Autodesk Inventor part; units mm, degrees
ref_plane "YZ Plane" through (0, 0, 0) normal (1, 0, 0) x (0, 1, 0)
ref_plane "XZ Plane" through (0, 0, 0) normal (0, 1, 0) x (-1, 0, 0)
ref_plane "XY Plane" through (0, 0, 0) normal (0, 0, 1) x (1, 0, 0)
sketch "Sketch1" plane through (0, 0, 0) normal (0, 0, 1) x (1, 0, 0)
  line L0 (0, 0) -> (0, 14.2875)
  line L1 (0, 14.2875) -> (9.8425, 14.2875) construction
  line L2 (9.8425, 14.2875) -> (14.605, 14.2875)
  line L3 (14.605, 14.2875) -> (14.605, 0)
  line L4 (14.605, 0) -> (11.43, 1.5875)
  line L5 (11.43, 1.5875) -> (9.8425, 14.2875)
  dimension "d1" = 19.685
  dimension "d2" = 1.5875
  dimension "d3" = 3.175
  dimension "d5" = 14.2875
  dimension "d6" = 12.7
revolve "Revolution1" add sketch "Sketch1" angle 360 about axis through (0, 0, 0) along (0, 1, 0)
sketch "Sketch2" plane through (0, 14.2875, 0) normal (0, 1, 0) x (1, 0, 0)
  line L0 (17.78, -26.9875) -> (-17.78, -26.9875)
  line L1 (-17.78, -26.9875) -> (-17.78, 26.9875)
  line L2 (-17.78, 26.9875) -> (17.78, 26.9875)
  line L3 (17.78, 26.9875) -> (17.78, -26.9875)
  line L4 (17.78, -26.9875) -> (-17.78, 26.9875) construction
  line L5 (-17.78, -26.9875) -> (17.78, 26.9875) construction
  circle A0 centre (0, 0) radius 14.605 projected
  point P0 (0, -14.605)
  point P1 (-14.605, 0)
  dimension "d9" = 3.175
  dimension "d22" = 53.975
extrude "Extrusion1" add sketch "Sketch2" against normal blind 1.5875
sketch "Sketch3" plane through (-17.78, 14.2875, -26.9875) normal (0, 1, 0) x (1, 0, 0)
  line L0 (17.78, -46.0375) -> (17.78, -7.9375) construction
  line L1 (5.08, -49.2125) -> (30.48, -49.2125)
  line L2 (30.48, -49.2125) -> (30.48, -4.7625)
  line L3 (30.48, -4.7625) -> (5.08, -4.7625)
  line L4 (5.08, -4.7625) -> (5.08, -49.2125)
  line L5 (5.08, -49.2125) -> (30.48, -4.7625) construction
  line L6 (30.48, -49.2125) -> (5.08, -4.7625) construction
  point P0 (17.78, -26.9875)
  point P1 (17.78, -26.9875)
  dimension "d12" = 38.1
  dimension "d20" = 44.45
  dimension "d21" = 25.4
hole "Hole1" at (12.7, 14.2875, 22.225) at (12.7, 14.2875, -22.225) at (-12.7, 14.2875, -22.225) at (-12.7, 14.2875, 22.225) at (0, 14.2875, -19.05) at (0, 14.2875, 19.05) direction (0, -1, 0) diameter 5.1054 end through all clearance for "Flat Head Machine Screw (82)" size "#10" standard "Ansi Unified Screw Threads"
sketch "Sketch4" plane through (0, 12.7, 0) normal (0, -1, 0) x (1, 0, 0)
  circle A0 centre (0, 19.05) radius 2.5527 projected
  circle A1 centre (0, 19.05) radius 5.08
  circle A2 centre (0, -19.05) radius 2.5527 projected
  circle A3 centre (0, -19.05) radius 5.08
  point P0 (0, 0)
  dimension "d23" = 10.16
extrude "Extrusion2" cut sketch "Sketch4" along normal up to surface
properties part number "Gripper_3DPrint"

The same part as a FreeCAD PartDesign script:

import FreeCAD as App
import Part
import Sketcher
from FreeCAD import Vector
Q = App.Units.Quantity

doc = App.newDocument("Part")
body = doc.addObject("PartDesign::Body", "Body")

sketch1 = doc.addObject("Sketcher::SketchObject", "Sketch")
body.addObject(sketch1)
sketch1.AttachmentSupport = (doc.XY_Plane, [""])
sketch1.MapMode = "FlatFace"
sketch1.addGeometry([
    Part.LineSegment(Vector(14.6, 14.3, 0), Vector(9.8, 14.3, 0)),
    Part.LineSegment(Vector(9.8, 14.3, 0), Vector(11.4, 1.6, 0)),
    Part.LineSegment(Vector(11.4, 1.6, 0), Vector(14.6, 0, 0)),
    Part.LineSegment(Vector(14.6, 0, 0), Vector(14.6, 14.3, 0)),
], False)
sketch1.addConstraint([
    Sketcher.Constraint("Coincident", 0, 2, 1, 1),
    Sketcher.Constraint("Coincident", 1, 2, 2, 1),
    Sketcher.Constraint("Coincident", 2, 2, 3, 1),
    Sketcher.Constraint("Coincident", 3, 2, 0, 1),
    Sketcher.Constraint("Horizontal", 0),
    Sketcher.Constraint("Vertical", 3),
    Sketcher.Constraint("PointOnObject", 2, 2, -1),
    Sketcher.Constraint("DistanceY", 1, 2, 0, 2, Q("0.5 in")),
    Sketcher.Constraint("DistanceY", 3, 1, 3, 2, Q("0.5625 in")),
    Sketcher.Constraint("DistanceX", 0, 2, 1, 2, Q("0.0625 in")),
    Sketcher.Constraint("DistanceX", 1, 2, 2, 2, Q("0.125 in")),
    Sketcher.Constraint("DistanceX", -1, 1, 1, 2, Q("0.45 in")),
])
revolution = doc.addObject("PartDesign::Revolution", "Revolution")
body.addObject(revolution)
revolution.Profile = sketch1
revolution.ReferenceAxis = (sketch1, ["V_Axis"])
revolution.Angle = 360

sketch2 = doc.addObject("Sketcher::SketchObject", "Sketch001")
body.addObject(sketch2)
sketch2.AttachmentSupport = (doc.XZ_Plane, [""])
sketch2.MapMode = "FlatFace"
sketch2.AttachmentOffset = App.Placement(Vector(0, 0, -0.5625 * 25.4), App.Rotation())
sketch2.addGeometry([
    Part.LineSegment(Vector(-18, 27, 0), Vector(18, 27, 0)),
    Part.LineSegment(Vector(18, 27, 0), Vector(18, -27, 0)),
    Part.LineSegment(Vector(18, -27, 0), Vector(-18, -27, 0)),
    Part.LineSegment(Vector(-18, -27, 0), Vector(-18, 27, 0)),
    Part.Circle(Vector(0, 0, 0), Vector(0, 0, 1), 15),
], False)
sketch2.addConstraint([
    Sketcher.Constraint("Coincident", 0, 2, 1, 1),
    Sketcher.Constraint("Coincident", 1, 2, 2, 1),
    Sketcher.Constraint("Coincident", 2, 2, 3, 1),
    Sketcher.Constraint("Coincident", 3, 2, 0, 1),
    Sketcher.Constraint("Horizontal", 0),
    Sketcher.Constraint("Vertical", 1),
    Sketcher.Constraint("Horizontal", 2),
    Sketcher.Constraint("Vertical", 3),
    Sketcher.Constraint("Coincident", 4, 3, -1, 1),
    Sketcher.Constraint("Symmetric", 0, 2, 2, 2, -1, 1),
    Sketcher.Constraint("Diameter", 4, Q("1.15 in")),
    Sketcher.Constraint("DistanceY", 1, 2, 1, 1, Q("2.125 in")),
    Sketcher.Constraint("DistanceX", 0, 1, 0, 2, Q("1.4 in")),
])
pad1 = doc.addObject("PartDesign::Pad", "Pad")
body.addObject(pad1)
pad1.Profile = sketch2
pad1.Length = Q("0.0625 in")

sketch3 = doc.addObject("Sketcher::SketchObject", "Sketch002")
body.addObject(sketch3)
sketch3.AttachmentSupport = (doc.XZ_Plane, [""])
sketch3.MapMode = "FlatFace"
sketch3.AttachmentOffset = App.Placement(Vector(0, 0, -0.5625 * 25.4), App.Rotation())
sketch3.addGeometry([
    Part.Circle(Vector(12.7, 22.2, 0), Vector(0, 0, 1), 2.6),
    Part.Circle(Vector(12.7, -22.2, 0), Vector(0, 0, 1), 2.6),
    Part.Circle(Vector(-12.7, -22.2, 0), Vector(0, 0, 1), 2.6),
    Part.Circle(Vector(-12.7, 22.2, 0), Vector(0, 0, 1), 2.6),
    Part.Circle(Vector(0, -19.1, 0), Vector(0, 0, 1), 2.6),
    Part.Circle(Vector(0, 19.1, 0), Vector(0, 0, 1), 2.6),
], False)
sketch3.addConstraint([
    Sketcher.Constraint("Equal", 0, 1),
    Sketcher.Constraint("Equal", 1, 2),
    Sketcher.Constraint("Equal", 2, 3),
    Sketcher.Constraint("Equal", 3, 4),
    Sketcher.Constraint("Equal", 4, 5),
    Sketcher.Constraint("Symmetric", 0, 3, 2, 3, -1, 1),
    Sketcher.Constraint("Symmetric", 1, 3, 3, 3, -1, 1),
    Sketcher.Constraint("Symmetric", 4, 3, 5, 3, -1, 1),
    Sketcher.Constraint("Symmetric", 1, 3, 2, 3, -2),
    Sketcher.Constraint("PointOnObject", 4, 3, -2),
    Sketcher.Constraint("Diameter", 0, Q("0.201 in")),
    Sketcher.Constraint("DistanceX", 2, 3, 1, 3, Q("1 in")),
    Sketcher.Constraint("DistanceY", 4, 3, 5, 3, Q("1.5 in")),
    Sketcher.Constraint("DistanceY", 1, 3, 0, 3, Q("1.75 in")),
])
doc.recompute()
hole = doc.addObject("PartDesign::Hole", "Hole")
body.addObject(hole)
hole.Profile = sketch3
hole.ThreadType = "None"
hole.Diameter = Q("0.201 in")
hole.DepthType = "ThroughAll"
hole.Reversed = True

sketch4 = doc.addObject("Sketcher::SketchObject", "Sketch003")
body.addObject(sketch4)
sketch4.AttachmentSupport = (doc.XZ_Plane, [""])
sketch4.MapMode = "FlatFace"
sketch4.AttachmentOffset = App.Placement(Vector(0, 0, -0.5 * 25.4), App.Rotation())
sketch4.addGeometry([
    Part.Circle(Vector(0, 19.1, 0), Vector(0, 0, 1), 5.1),
    Part.Circle(Vector(0, 19.1, 0), Vector(0, 0, 1), 2.6),
    Part.Circle(Vector(0, -19.1, 0), Vector(0, 0, 1), 5.1),
    Part.Circle(Vector(0, -19.1, 0), Vector(0, 0, 1), 2.6),
], False)
sketch4.addConstraint([
    Sketcher.Constraint("Coincident", 1, 3, 0, 3),
    Sketcher.Constraint("Coincident", 3, 3, 2, 3),
    Sketcher.Constraint("Equal", 0, 2),
    Sketcher.Constraint("Equal", 1, 3),
    Sketcher.Constraint("Symmetric", 0, 3, 2, 3, -1, 1),
    Sketcher.Constraint("PointOnObject", 0, 3, -2),
    Sketcher.Constraint("Diameter", 0, Q("0.4 in")),
    Sketcher.Constraint("Diameter", 1, Q("0.201 in")),
    Sketcher.Constraint("DistanceY", 2, 3, 0, 3, Q("1.5 in")),
])
pocket1 = doc.addObject("PartDesign::Pocket", "Pocket")
body.addObject(pocket1)
pocket1.Profile = sketch4
pocket1.Length = Q("0.5 in")
pocket1.Reversed = True

doc.recompute()
